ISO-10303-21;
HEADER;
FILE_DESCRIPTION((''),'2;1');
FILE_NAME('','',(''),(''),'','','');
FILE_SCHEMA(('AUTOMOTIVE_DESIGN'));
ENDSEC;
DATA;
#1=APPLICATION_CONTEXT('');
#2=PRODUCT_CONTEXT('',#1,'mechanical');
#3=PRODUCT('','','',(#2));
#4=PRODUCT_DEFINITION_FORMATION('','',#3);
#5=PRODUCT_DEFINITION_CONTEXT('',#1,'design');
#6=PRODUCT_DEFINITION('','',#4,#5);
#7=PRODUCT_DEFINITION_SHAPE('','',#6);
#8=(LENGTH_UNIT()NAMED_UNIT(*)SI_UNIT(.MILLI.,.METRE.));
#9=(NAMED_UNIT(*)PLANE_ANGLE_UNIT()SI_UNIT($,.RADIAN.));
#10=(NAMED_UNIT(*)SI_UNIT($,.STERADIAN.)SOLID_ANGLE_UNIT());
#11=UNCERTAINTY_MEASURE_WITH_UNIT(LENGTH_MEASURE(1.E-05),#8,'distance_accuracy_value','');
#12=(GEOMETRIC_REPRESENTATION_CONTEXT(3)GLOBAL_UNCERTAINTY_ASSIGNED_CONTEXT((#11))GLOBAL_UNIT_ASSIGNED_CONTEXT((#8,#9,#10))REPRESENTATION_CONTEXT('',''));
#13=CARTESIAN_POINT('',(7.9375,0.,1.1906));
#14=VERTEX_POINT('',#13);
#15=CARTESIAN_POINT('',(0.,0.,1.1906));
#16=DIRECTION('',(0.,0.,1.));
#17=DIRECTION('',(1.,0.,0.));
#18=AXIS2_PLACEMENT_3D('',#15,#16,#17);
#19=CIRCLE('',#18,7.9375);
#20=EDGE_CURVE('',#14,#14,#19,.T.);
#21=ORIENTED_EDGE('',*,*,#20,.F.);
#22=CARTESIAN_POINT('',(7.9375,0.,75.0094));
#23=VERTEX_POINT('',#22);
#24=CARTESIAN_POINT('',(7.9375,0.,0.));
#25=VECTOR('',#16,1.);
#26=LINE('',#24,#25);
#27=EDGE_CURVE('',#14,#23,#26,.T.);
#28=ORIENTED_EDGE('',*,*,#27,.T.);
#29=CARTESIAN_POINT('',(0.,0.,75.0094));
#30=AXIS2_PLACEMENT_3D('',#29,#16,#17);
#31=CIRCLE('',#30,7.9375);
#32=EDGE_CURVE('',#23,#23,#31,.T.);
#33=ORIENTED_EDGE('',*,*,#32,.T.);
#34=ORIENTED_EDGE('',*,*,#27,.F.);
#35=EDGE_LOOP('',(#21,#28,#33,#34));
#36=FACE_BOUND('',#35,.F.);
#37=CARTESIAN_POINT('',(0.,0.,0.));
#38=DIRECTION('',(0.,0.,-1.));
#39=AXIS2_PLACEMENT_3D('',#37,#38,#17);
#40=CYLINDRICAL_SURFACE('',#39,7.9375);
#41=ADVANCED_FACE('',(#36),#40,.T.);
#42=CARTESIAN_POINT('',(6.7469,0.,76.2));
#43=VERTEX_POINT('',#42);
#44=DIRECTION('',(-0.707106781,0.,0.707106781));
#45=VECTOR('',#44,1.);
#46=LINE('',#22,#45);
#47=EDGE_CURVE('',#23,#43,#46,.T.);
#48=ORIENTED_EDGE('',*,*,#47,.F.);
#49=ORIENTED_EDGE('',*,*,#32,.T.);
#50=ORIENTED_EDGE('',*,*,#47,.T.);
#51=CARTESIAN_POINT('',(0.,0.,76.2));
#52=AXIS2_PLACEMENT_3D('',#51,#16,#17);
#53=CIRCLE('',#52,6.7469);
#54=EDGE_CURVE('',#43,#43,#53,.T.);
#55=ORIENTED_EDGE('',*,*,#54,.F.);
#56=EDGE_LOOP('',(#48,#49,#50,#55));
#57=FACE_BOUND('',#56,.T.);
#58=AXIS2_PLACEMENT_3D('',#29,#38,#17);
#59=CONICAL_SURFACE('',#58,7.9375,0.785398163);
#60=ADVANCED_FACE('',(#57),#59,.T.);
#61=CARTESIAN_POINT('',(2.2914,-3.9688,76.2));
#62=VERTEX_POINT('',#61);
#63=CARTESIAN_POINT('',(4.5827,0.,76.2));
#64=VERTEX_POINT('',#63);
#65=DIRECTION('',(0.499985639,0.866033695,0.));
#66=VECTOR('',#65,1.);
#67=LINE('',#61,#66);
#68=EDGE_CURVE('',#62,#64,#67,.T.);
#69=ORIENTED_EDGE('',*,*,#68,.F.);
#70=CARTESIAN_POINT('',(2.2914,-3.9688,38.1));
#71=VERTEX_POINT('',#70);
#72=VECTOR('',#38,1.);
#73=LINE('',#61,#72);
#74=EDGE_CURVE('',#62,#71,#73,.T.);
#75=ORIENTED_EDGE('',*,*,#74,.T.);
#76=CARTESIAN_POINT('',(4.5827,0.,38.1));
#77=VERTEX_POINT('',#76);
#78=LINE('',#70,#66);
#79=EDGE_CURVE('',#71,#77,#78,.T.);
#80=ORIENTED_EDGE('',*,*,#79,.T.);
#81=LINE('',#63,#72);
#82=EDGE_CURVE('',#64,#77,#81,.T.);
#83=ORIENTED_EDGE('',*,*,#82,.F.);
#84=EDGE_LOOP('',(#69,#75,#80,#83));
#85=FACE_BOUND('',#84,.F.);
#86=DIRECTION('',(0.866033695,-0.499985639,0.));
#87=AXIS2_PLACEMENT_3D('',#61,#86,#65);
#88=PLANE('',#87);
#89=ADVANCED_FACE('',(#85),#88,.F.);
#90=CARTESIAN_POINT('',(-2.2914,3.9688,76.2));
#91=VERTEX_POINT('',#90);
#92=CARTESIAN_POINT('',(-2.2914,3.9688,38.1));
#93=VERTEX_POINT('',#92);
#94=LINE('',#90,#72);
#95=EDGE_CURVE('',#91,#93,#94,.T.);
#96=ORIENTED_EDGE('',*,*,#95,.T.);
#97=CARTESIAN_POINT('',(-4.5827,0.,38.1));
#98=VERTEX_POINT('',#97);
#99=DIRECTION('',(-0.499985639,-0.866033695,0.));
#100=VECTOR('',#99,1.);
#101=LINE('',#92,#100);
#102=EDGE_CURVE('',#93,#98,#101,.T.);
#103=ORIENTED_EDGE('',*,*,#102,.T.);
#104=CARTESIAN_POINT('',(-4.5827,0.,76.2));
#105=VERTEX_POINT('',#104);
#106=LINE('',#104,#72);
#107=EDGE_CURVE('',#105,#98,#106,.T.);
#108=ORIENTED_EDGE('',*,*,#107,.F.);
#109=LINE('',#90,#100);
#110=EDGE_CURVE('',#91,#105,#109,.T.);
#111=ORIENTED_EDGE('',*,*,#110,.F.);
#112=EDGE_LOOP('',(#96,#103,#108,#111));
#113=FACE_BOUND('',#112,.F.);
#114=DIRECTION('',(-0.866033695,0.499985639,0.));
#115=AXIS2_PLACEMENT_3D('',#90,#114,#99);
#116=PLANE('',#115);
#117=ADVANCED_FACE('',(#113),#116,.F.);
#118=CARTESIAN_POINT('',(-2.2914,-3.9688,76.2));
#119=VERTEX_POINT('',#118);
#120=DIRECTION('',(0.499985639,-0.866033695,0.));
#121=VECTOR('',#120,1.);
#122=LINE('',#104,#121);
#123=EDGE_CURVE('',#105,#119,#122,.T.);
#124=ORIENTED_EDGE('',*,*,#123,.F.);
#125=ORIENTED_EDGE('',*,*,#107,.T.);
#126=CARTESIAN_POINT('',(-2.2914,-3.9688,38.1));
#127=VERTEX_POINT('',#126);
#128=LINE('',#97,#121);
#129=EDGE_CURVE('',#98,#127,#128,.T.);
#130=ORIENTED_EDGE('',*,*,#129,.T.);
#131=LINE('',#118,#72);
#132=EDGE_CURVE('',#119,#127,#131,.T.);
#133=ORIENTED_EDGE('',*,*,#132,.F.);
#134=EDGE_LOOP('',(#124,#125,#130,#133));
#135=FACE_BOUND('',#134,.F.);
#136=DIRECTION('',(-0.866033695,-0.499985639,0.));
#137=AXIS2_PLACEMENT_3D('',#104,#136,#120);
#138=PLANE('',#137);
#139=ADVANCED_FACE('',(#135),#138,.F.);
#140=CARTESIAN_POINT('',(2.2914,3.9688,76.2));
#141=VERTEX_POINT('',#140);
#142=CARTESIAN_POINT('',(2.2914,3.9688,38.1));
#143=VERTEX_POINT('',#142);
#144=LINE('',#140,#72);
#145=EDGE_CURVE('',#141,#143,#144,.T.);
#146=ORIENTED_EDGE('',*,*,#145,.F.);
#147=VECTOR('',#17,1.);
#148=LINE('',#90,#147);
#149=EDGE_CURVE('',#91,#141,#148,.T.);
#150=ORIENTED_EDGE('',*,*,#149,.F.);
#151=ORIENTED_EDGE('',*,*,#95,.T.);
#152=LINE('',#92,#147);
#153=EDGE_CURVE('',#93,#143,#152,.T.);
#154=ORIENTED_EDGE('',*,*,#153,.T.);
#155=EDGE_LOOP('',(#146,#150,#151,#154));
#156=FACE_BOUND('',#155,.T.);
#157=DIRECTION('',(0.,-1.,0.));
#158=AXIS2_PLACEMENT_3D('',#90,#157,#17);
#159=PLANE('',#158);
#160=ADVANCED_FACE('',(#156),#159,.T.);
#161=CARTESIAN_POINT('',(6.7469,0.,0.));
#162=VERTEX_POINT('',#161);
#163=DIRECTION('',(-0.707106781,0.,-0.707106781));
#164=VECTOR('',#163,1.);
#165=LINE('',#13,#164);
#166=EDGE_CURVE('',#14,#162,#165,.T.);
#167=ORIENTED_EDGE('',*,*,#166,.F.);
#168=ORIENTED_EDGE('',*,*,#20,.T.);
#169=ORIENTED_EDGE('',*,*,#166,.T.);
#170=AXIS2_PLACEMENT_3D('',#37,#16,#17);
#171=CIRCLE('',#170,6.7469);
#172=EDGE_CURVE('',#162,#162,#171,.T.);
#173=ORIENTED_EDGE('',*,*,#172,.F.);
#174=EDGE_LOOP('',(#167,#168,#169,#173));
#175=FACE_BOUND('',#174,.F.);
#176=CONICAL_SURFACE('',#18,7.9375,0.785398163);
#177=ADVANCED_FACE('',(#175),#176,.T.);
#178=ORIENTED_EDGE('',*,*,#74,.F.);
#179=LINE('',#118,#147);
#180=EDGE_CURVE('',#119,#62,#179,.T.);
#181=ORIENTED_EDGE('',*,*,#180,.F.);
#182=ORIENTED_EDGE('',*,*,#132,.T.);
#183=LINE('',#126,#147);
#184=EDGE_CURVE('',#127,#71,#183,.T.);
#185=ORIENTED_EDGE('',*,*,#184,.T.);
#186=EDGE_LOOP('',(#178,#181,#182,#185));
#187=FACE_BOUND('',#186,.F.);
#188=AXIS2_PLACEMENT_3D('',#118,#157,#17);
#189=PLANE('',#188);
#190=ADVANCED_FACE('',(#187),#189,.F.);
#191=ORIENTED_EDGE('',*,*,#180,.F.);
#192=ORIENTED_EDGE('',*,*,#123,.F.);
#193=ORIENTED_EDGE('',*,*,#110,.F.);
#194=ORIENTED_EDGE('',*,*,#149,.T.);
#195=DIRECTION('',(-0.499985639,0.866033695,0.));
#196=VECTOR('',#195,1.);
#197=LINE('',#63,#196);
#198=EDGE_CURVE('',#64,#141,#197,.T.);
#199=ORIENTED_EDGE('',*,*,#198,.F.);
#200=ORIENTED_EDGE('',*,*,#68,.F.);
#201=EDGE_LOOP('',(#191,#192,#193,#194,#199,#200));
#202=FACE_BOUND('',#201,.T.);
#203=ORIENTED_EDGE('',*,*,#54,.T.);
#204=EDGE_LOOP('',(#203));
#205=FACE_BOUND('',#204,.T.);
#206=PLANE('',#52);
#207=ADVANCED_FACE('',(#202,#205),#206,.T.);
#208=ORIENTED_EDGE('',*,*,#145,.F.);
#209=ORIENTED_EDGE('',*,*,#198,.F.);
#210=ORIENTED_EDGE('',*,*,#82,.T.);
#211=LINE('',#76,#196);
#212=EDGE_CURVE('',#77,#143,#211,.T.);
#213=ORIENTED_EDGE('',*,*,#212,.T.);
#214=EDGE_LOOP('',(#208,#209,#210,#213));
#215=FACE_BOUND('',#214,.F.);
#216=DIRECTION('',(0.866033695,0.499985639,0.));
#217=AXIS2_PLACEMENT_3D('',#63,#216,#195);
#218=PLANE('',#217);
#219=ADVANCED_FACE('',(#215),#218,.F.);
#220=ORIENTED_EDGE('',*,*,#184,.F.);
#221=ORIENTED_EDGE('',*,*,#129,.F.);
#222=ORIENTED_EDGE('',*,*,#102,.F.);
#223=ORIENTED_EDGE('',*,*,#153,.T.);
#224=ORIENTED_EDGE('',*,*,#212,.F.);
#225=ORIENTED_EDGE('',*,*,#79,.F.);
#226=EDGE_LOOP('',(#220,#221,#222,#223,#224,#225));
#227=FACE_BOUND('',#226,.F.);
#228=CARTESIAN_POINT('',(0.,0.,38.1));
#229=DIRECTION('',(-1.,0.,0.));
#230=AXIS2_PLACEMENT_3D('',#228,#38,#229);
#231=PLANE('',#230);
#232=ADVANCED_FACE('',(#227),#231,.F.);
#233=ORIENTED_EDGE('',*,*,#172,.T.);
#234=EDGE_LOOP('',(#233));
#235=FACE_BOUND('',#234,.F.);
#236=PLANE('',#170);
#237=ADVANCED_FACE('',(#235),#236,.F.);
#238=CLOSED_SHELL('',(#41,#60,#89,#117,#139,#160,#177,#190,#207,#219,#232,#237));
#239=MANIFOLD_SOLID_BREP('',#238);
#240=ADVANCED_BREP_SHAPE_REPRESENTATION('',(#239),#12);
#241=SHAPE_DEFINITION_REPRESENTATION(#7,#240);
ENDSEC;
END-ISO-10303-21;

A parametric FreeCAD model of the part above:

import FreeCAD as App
import Part
import Sketcher
from FreeCAD import Vector
Q = App.Units.Quantity


def edges_at(feature, points):
    """Names of the edges that pass closest to the given points."""
    edges = feature.Shape.Edges
    near = lambda p: min(range(len(edges)), key=lambda i: edges[i].distToShape(Part.Vertex(*p))[0])
    return sorted({f"Edge{near(p) + 1}" for p in points})


def add_polygon(sketch, points):
    """Adds a closed chain of lines whose ends are joined by coincident constraints."""
    first, n = sketch.GeometryCount, len(points)
    for a, b in zip(points, points[1:] + points[:1]):
        sketch.addGeometry(Part.LineSegment(App.Vector(*a, 0), App.Vector(*b, 0)), False)
    for i in range(n):
        sketch.addConstraint(Sketcher.Constraint("Coincident", first + i, 2, first + (i + 1) % n, 1))

doc = App.newDocument("Part")
params = doc.addObject("Spreadsheet::Sheet", "Params")
for row, (alias, value) in enumerate([
    ("sketch1_diameter", "0.625 in"),
    ("pad1_length", "3 in"),
    ("chamfer_size", "0.046874 in"),
    ("pocket1_length", "1.5 in"),
], start=1):
    params.set(f"A{row}", alias)
    params.set(f"B{row}", "=" + value)
    params.setAlias(f"B{row}", alias)

body = doc.addObject("PartDesign::Body", "Body")

# Sketch on XY plane
sketch1 = doc.addObject("Sketcher::SketchObject", "Sketch")
body.addObject(sketch1)
sketch1.AttachmentSupport = (doc.XY_Plane, [""])
sketch1.MapMode = "FlatFace"
sketch1.addGeometry(Part.Circle(Vector(0, 0, 0), Vector(0, 0, 1), 8), False)
sketch1.addConstraint([
    Sketcher.Constraint("Coincident", 0, 3, -1, 1),
    Sketcher.Constraint("Diameter", 0, Q("0.625 in")),
])
sketch1.setExpression("Constraints[1]", "Params.sketch1_diameter")
pad1 = doc.addObject("PartDesign::Pad", "Pad")
body.addObject(pad1)
pad1.Profile = sketch1
pad1.setExpression("Length", "Params.pad1_length")
doc.recompute()

chamfer = doc.addObject("PartDesign::Chamfer", "Chamfer")
body.addObject(chamfer)
chamfer.Base = (pad1, edges_at(pad1, [(-7.938, 0, 0), (-7.938, 0, 76.2)]))
chamfer.setExpression("Size", "Params.chamfer_size")

# Sketch on XY plane
sketch2 = doc.addObject("Sketcher::SketchObject", "Sketch001")
body.addObject(sketch2)
sketch2.AttachmentSupport = (doc.XY_Plane, [""])
sketch2.MapMode = "FlatFace"
sketch2.AttachmentOffset = App.Placement(Vector(0, 0, 3 * 25.4), App.Rotation())
add_polygon(sketch2, [(2.3, 4), (-2.3, 4), (-4.6, 0), (-2.3, -4), (2.3, -4), (4.6, 0)])  # lines 0-5
sketch2.addConstraint([
    Sketcher.Constraint("Horizontal", 0),
    Sketcher.Constraint("Horizontal", 3),
    Sketcher.Constraint("Symmetric", 0, 2, 3, 2, -1, 1),
    Sketcher.Constraint("Symmetric", 1, 2, 4, 2, -1, 1),
    Sketcher.Constraint("PointOnObject", 1, 2, -1),
    Sketcher.Constraint("Parallel", 2, 5),
    Sketcher.Constraint("Vertical", 0, 2, 2, 2),
    Sketcher.Constraint("Angle", 1, Q("-119.999 deg")),
    Sketcher.Constraint("DistanceY", -1, 1, 0, 2, Q("0.156252 in")),
    Sketcher.Constraint("DistanceX", 0, 2, 0, 1, 4.5828),
])
pocket1 = doc.addObject("PartDesign::Pocket", "Pocket")
body.addObject(pocket1)
pocket1.Profile = sketch2
pocket1.setExpression("Length", "Params.pocket1_length")

doc.recompute()
